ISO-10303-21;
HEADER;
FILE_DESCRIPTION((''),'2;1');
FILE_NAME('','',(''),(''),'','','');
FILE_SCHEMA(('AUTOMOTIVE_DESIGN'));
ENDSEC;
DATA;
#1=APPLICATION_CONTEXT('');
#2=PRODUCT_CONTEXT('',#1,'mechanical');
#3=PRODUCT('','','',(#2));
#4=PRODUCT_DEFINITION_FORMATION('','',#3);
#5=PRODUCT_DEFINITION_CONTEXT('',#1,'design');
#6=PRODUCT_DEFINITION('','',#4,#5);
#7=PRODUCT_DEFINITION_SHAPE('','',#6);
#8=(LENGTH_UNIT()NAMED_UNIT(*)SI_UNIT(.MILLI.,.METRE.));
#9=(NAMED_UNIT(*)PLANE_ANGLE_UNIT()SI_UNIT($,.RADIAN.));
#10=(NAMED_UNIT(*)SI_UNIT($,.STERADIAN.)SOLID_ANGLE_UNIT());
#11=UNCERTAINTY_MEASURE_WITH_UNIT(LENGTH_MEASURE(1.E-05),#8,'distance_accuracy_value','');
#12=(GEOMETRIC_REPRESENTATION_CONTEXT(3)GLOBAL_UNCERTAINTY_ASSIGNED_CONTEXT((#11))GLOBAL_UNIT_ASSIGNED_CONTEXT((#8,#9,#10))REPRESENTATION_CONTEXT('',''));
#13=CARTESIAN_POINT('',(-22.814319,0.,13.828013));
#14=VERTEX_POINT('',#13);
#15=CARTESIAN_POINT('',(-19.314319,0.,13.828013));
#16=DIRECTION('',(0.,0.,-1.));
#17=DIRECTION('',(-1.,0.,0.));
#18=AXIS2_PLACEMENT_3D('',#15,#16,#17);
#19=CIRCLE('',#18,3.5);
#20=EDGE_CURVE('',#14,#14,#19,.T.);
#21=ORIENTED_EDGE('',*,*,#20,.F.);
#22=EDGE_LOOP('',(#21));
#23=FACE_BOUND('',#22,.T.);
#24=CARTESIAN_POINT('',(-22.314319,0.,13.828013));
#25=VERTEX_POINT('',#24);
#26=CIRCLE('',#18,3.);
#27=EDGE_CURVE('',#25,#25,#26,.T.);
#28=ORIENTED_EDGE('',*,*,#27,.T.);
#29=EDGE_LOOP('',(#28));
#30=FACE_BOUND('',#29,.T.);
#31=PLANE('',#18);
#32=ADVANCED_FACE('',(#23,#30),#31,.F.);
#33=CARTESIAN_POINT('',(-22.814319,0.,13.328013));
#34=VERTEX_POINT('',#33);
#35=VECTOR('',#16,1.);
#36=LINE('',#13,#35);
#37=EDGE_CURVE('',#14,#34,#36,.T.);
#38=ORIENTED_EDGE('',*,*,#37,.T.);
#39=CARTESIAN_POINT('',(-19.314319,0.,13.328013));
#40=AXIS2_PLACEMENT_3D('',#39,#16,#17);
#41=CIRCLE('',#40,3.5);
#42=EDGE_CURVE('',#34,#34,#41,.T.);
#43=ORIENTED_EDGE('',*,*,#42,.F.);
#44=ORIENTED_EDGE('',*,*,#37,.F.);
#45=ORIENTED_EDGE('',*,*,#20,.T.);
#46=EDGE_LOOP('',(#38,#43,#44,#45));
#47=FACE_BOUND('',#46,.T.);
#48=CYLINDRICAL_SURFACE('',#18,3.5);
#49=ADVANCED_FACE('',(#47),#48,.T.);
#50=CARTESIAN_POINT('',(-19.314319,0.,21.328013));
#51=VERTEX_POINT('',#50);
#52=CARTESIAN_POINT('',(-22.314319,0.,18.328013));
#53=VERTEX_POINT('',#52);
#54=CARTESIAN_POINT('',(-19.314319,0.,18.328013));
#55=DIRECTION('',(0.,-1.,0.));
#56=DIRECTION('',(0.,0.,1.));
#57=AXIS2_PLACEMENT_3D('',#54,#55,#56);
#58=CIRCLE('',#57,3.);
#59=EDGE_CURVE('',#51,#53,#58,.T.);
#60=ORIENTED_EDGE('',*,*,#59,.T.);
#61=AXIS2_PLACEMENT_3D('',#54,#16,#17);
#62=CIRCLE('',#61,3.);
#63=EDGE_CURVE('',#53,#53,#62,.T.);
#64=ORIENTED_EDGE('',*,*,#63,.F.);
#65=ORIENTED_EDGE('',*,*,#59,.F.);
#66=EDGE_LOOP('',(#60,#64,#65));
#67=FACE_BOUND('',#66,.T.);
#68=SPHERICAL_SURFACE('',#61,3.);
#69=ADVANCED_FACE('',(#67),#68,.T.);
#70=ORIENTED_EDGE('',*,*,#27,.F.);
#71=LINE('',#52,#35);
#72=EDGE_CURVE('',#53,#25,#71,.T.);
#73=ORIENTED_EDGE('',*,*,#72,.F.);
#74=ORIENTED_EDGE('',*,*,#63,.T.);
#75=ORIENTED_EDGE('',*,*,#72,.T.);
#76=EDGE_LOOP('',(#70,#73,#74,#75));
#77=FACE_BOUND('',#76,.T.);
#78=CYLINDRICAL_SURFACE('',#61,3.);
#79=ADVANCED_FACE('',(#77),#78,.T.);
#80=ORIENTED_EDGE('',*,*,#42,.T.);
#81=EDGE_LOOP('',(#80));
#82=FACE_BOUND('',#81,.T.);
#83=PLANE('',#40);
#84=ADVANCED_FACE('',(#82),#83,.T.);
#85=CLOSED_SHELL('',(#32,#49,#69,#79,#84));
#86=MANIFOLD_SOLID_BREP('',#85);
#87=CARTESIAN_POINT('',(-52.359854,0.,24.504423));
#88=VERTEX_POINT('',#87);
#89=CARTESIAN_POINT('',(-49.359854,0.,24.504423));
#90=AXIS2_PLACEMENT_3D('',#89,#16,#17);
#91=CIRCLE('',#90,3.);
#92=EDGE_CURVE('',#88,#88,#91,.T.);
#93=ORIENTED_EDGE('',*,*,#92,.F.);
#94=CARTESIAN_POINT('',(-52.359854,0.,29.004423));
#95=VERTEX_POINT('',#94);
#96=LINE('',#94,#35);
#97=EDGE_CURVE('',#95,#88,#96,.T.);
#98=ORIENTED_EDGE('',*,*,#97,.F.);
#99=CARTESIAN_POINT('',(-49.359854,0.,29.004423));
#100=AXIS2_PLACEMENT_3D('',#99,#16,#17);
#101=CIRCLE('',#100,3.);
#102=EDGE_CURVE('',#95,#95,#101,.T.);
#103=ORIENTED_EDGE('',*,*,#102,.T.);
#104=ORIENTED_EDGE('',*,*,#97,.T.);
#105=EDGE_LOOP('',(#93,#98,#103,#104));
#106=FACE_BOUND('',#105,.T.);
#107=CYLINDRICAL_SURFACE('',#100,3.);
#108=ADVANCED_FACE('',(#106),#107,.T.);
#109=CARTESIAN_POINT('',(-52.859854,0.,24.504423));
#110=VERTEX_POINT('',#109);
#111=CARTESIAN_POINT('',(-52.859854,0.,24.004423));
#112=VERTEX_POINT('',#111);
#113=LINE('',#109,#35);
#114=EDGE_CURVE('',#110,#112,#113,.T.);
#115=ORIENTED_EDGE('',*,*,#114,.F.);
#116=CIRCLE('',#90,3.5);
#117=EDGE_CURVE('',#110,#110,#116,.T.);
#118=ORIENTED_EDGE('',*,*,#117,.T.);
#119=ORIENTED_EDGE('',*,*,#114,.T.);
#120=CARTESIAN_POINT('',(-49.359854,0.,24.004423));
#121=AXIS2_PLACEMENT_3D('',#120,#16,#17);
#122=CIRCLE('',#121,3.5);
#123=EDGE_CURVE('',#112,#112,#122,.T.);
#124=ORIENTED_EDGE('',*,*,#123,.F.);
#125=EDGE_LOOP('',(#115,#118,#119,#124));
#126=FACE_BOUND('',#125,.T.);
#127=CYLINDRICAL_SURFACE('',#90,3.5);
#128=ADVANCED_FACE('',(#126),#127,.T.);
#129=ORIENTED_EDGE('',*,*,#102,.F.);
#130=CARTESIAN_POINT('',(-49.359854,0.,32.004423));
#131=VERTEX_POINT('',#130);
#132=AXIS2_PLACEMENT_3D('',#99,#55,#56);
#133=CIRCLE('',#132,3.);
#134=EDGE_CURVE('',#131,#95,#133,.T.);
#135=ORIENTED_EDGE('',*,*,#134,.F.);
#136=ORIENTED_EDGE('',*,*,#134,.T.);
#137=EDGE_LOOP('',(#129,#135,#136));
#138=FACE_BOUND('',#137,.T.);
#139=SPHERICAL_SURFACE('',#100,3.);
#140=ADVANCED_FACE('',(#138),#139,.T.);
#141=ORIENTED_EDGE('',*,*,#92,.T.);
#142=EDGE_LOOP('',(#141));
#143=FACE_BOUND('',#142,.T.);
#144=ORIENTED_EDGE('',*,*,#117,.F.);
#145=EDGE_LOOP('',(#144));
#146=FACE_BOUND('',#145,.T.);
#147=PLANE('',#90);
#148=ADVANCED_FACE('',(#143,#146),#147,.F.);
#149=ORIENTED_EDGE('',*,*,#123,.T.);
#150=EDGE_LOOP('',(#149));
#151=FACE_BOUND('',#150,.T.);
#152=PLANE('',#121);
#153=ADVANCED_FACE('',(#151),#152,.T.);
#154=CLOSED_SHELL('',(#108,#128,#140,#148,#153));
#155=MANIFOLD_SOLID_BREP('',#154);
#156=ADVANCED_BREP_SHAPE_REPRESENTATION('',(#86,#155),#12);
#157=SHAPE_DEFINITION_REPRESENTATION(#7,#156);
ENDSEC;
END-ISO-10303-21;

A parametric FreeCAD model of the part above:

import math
import FreeCAD as App
import Part
import Sketcher
from FreeCAD import Vector

doc = App.newDocument("Part")
body = doc.addObject("PartDesign::Body", "Body")

sketch1 = body.newObject("Sketcher::SketchObject", "Sketch")
sketch1.AttachmentSupport = (doc.getObject("XZ_Plane"), [""])
sketch1.MapMode = "FlatFace"
sketch1.addGeometry([
    Part.LineSegment(Vector(-52.9, 24, 0), Vector(-49.4, 24, 0)),
    Part.LineSegment(Vector(-49.4, 24, 0), Vector(-49.4, 32, 0)),
    Part.ArcOfCircle(Part.Circle(Vector(-49.4, 29, 0), Vector(0, 0, 1), 3), math.radians(90), math.radians(180)),
    Part.LineSegment(Vector(-52.4, 29, 0), Vector(-52.4, 24.5, 0)),
    Part.LineSegment(Vector(-52.4, 24.5, 0), Vector(-52.9, 24.5, 0)),
    Part.LineSegment(Vector(-52.9, 24.5, 0), Vector(-52.9, 24, 0)),
], False)
sketch1.addGeometry(Part.LineSegment(Vector(-49.4, 32, 0), Vector(-49.4, 24, 0)), True)
sketch1.addConstraint([
    Sketcher.Constraint("Coincident", 0, 2, 1, 1),
    Sketcher.Constraint("Coincident", 1, 2, 2, 1),
    Sketcher.Constraint("Tangent", 2, 2, 3, 1),
    Sketcher.Constraint("Coincident", 3, 2, 4, 1),
    Sketcher.Constraint("Coincident", 4, 2, 5, 1),
    Sketcher.Constraint("Coincident", 5, 2, 0, 1),
    Sketcher.Constraint("Horizontal", 0),
    Sketcher.Constraint("Vertical", 1),
    Sketcher.Constraint("Vertical", 3),
    Sketcher.Constraint("Horizontal", 4),
    Sketcher.Constraint("Vertical", 5),
    Sketcher.Constraint("Vertical", 6),
    Sketcher.Constraint("Coincident", 6, 1, 1, 2),
    Sketcher.Constraint("Horizontal", 5, 2, 6, 2),
    Sketcher.Constraint("Vertical", 2, 3, 0, 2),
    Sketcher.Constraint("Equal", 4, 5),
    Sketcher.Constraint("Radius", 2, 3.0),
    Sketcher.Constraint("DistanceY", 1, 1, 1, 2, 8.0),
    Sketcher.Constraint("DistanceX", 0, 1, 0, 2, 3.5),
    Sketcher.Constraint("DistanceX", 2, 3, -1, 1, 49.359854),
    Sketcher.Constraint("DistanceY", -1, 1, 2, 3, 29.004423),
])
revolution = body.newObject("PartDesign::Revolution", "Revolution")
revolution.Profile = sketch1
revolution.ReferenceAxis = (sketch1, ["Axis0"])
revolution.Angle = 360
body2 = doc.addObject("PartDesign::Body", "Body001")

sketch2 = body2.newObject("Sketcher::SketchObject", "Sketch001")
sketch2.AttachmentSupport = (doc.getObject("XZ_Plane001"), [""])
sketch2.MapMode = "FlatFace"
sketch2.addGeometry([
    Part.LineSegment(Vector(-22.8, 13.3, 0), Vector(-19.3, 13.3, 0)),
    Part.LineSegment(Vector(-19.3, 13.3, 0), Vector(-19.3, 21.3, 0)),
    Part.ArcOfCircle(Part.Circle(Vector(-19.3, 18.3, 0), Vector(0, 0, 1), 3), math.radians(90), math.radians(180)),
    Part.LineSegment(Vector(-22.3, 18.3, 0), Vector(-22.3, 13.8, 0)),
    Part.LineSegment(Vector(-22.3, 13.8, 0), Vector(-22.8, 13.8, 0)),
    Part.LineSegment(Vector(-22.8, 13.8, 0), Vector(-22.8, 13.3, 0)),
], False)
sketch2.addGeometry(Part.LineSegment(Vector(-19.3, 21.3, 0), Vector(-19.3, 13.3, 0)), True)
sketch2.addConstraint([
    Sketcher.Constraint("Coincident", 0, 2, 1, 1),
    Sketcher.Constraint("Coincident", 1, 2, 2, 1),
    Sketcher.Constraint("Tangent", 2, 2, 3, 1),
    Sketcher.Constraint("Coincident", 3, 2, 4, 1),
    Sketcher.Constraint("Coincident", 4, 2, 5, 1),
    Sketcher.Constraint("Coincident", 5, 2, 0, 1),
    Sketcher.Constraint("Horizontal", 0),
    Sketcher.Constraint("Vertical", 1),
    Sketcher.Constraint("Vertical", 3),
    Sketcher.Constraint("Horizontal", 4),
    Sketcher.Constraint("Vertical", 5),
    Sketcher.Constraint("Vertical", 6),
    Sketcher.Constraint("Coincident", 6, 1, 1, 2),
    Sketcher.Constraint("Horizontal", 5, 2, 6, 2),
    Sketcher.Constraint("Vertical", 2, 3, 0, 2),
    Sketcher.Constraint("Equal", 4, 5),
    Sketcher.Constraint("Radius", 2, 3.0),
    Sketcher.Constraint("DistanceY", 1, 1, 1, 2, 8.0),
    Sketcher.Constraint("DistanceX", 0, 1, 0, 2, 3.5),
    Sketcher.Constraint("DistanceX", 2, 3, -1, 1, 19.314319),
    Sketcher.Constraint("DistanceY", -1, 1, 2, 3, 18.328013),
])
revolution2 = body2.newObject("PartDesign::Revolution", "Revolution001")
revolution2.Profile = sketch2
revolution2.ReferenceAxis = (sketch2, ["Axis0"])
revolution2.Angle = 360

doc.recompute()
